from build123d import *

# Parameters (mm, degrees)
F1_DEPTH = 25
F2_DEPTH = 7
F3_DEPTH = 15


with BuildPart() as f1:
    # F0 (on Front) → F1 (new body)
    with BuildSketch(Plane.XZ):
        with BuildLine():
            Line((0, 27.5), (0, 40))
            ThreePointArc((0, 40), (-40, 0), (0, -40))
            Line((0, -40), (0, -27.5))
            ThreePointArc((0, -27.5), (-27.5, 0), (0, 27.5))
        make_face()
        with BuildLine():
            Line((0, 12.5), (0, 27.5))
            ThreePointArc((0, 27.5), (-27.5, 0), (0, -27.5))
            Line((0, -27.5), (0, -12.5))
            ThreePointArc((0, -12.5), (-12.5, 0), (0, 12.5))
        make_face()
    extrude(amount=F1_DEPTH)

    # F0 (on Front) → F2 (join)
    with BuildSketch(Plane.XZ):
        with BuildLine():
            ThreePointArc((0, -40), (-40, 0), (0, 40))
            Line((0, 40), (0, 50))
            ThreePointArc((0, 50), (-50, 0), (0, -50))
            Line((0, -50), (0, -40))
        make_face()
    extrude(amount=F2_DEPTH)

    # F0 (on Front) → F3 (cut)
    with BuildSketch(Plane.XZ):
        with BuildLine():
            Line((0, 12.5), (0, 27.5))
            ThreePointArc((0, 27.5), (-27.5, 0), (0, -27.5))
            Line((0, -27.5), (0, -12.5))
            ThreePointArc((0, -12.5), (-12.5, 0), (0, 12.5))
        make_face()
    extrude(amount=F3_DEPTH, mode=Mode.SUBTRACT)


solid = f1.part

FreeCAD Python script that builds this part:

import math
import FreeCAD as App
import Part
import Sketcher
from FreeCAD import Vector
Q = App.Units.Quantity

doc = App.newDocument("Part")
body = doc.addObject("PartDesign::Body", "Body")

sketch1 = body.newObject("Sketcher::SketchObject", "Sketch")
sketch1.AttachmentSupport = (doc.getObject("XZ_Plane"), [""])
sketch1.MapMode = "FlatFace"
sketch1.addGeometry([
    Part.ArcOfCircle(Part.Circle(Vector(0, 0, 0), Vector(0, 0, 1), 40), math.radians(90), math.radians(270)),
    Part.LineSegment(Vector(0, -40, 0), Vector(0, -12, 0)),
    Part.ArcOfCircle(Part.Circle(Vector(0, 0, 0), Vector(0, 0, 1), 12), math.radians(90), math.radians(270)),
    Part.LineSegment(Vector(0, 12, 0), Vector(0, 40, 0)),
], False)
sketch1.addConstraint([
    Sketcher.Constraint("Coincident", 0, 2, 1, 1),
    Sketcher.Constraint("Coincident", 1, 2, 2, 2),
    Sketcher.Constraint("Coincident", 2, 1, 3, 1),
    Sketcher.Constraint("Coincident", 3, 2, 0, 1),
    Sketcher.Constraint("Vertical", 1),
    Sketcher.Constraint("Vertical", 3),
    Sketcher.Constraint("Coincident", 0, 3, -1, 1),
    Sketcher.Constraint("Coincident", 2, 3, -1, 1),
    Sketcher.Constraint("PointOnObject", 0, 2, -2),
    Sketcher.Constraint("PointOnObject", 2, 1, -2),
    Sketcher.Constraint("Radius", 0, Q("40 mm")),
    Sketcher.Constraint("Radius", 2, Q("12.5 mm")),
])
pad1 = body.newObject("PartDesign::Pad", "Pad")
pad1.Profile = sketch1
pad1.Length = 25

sketch2 = body.newObject("Sketcher::SketchObject", "Sketch001")
sketch2.AttachmentSupport = (doc.getObject("XZ_Plane"), [""])
sketch2.MapMode = "FlatFace"
sketch2.addGeometry([
    Part.ArcOfCircle(Part.Circle(Vector(0, 0, 0), Vector(0, 0, 1), 40), math.radians(90), math.radians(270)),
    Part.LineSegment(Vector(0, 40, 0), Vector(0, 50, 0)),
    Part.ArcOfCircle(Part.Circle(Vector(0, 0, 0), Vector(0, 0, 1), 50), math.radians(90), math.radians(270)),
    Part.LineSegment(Vector(0, -50, 0), Vector(0, -40, 0)),
], False)
sketch2.addConstraint([
    Sketcher.Constraint("Coincident", 0, 1, 1, 1),
    Sketcher.Constraint("Coincident", 1, 2, 2, 1),
    Sketcher.Constraint("Coincident", 2, 2, 3, 1),
    Sketcher.Constraint("Coincident", 3, 2, 0, 2),
    Sketcher.Constraint("Vertical", 1),
    Sketcher.Constraint("Vertical", 3),
    Sketcher.Constraint("Coincident", 0, 3, -1, 1),
    Sketcher.Constraint("Coincident", 2, 3, -1, 1),
    Sketcher.Constraint("PointOnObject", 0, 1, -2),
    Sketcher.Constraint("PointOnObject", 2, 2, -2),
    Sketcher.Constraint("Radius", 0, Q("40 mm")),
    Sketcher.Constraint("Radius", 2, Q("50 mm")),
])
pad2 = body.newObject("PartDesign::Pad", "Pad001")
pad2.Profile = sketch2
pad2.Length = 7

sketch3 = body.newObject("Sketcher::SketchObject", "Sketch002")
sketch3.AttachmentSupport = (doc.getObject("XZ_Plane"), [""])
sketch3.MapMode = "FlatFace"
sketch3.addGeometry([
    Part.LineSegment(Vector(0, 12, 0), Vector(0, 28, 0)),
    Part.ArcOfCircle(Part.Circle(Vector(0, 0, 0), Vector(0, 0, 1), 28), math.radians(90), math.radians(270)),
    Part.LineSegment(Vector(0, -28, 0), Vector(0, -12, 0)),
    Part.ArcOfCircle(Part.Circle(Vector(0, 0, 0), Vector(0, 0, 1), 12), math.radians(90), math.radians(270)),
], False)
sketch3.addConstraint([
    Sketcher.Constraint("Coincident", 0, 2, 1, 1),
    Sketcher.Constraint("Coincident", 1, 2, 2, 1),
    Sketcher.Constraint("Coincident", 2, 2, 3, 2),
    Sketcher.Constraint("Coincident", 3, 1, 0, 1),
    Sketcher.Constraint("Vertical", 0),
    Sketcher.Constraint("Vertical", 2),
    Sketcher.Constraint("Coincident", 1, 3, -1, 1),
    Sketcher.Constraint("Coincident", 3, 3, -1, 1),
    Sketcher.Constraint("PointOnObject", 0, 2, -2),
    Sketcher.Constraint("PointOnObject", 1, 2, -2),
    Sketcher.Constraint("Radius", 1, Q("27.5 mm")),
    Sketcher.Constraint("Radius", 3, Q("12.5 mm")),
])
pocket1 = body.newObject("PartDesign::Pocket", "Pocket")
pocket1.Profile = sketch3
pocket1.Length = 15
pocket1.Reversed = True

doc.recompute()
